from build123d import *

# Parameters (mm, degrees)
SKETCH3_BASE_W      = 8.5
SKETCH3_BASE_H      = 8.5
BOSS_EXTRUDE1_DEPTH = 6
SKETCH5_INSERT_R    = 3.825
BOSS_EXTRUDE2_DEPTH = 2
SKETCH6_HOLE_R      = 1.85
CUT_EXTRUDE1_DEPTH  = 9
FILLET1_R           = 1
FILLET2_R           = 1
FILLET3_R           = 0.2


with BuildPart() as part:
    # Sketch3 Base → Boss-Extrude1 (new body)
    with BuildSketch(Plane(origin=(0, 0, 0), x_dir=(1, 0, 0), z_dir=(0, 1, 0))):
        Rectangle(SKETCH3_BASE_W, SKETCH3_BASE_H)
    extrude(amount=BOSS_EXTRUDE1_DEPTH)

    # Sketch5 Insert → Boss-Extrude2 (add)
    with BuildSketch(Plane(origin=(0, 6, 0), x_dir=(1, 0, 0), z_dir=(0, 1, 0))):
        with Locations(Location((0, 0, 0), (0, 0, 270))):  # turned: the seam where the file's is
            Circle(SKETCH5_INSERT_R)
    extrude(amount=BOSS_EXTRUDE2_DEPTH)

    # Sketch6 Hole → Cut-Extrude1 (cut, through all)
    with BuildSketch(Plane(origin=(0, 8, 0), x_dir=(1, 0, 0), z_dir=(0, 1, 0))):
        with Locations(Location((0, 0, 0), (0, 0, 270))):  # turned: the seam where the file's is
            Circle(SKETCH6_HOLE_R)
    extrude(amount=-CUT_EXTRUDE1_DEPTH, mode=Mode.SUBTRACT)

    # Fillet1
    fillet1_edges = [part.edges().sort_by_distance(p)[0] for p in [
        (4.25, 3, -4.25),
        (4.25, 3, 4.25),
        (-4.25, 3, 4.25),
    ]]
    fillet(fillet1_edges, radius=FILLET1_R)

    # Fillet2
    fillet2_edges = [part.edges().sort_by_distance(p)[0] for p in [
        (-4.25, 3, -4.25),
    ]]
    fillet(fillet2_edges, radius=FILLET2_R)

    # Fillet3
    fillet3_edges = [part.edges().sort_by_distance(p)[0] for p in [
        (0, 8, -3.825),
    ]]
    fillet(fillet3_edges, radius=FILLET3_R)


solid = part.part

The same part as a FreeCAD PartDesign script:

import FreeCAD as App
import Part
import Sketcher
from FreeCAD import Vector
Q = App.Units.Quantity


def edges_at(feature, points):
    """Names of the edges that pass closest to the given points."""
    edges = feature.Shape.Edges
    near = lambda p: min(range(len(edges)), key=lambda i: edges[i].distToShape(Part.Vertex(*p))[0])
    return sorted({f"Edge{near(p) + 1}" for p in points})

doc = App.newDocument("Part")
body = doc.addObject("PartDesign::Body", "Body")

sketch1 = body.newObject("Sketcher::SketchObject", "Sketch")
sketch1.AttachmentSupport = (doc.getObject("XZ_Plane"), [""])
sketch1.MapMode = "FlatFace"
sketch1.addGeometry([
    Part.LineSegment(Vector(-4.25, -4.25, 0), Vector(-4.25, 4.25, 0)),
    Part.LineSegment(Vector(-4.25, 4.25, 0), Vector(4.25, 4.25, 0)),
    Part.LineSegment(Vector(4.25, 4.25, 0), Vector(4.25, -4.25, 0)),
    Part.LineSegment(Vector(4.25, -4.25, 0), Vector(-4.25, -4.25, 0)),
], False)
sketch1.addConstraint([
    Sketcher.Constraint("Coincident", 0, 2, 1, 1),
    Sketcher.Constraint("Coincident", 1, 2, 2, 1),
    Sketcher.Constraint("Coincident", 2, 2, 3, 1),
    Sketcher.Constraint("Coincident", 3, 2, 0, 1),
    Sketcher.Constraint("Vertical", 0),
    Sketcher.Constraint("Horizontal", 1),
    Sketcher.Constraint("Vertical", 2),
    Sketcher.Constraint("Horizontal", 3),
    Sketcher.Constraint("Symmetric", 0, 2, 2, 2, -1, 1),
    Sketcher.Constraint("Equal", 3, 0),
    Sketcher.Constraint("DistanceX", 1, 1, 1, 2, Q("8.5 mm")),
])
pad1 = body.newObject("PartDesign::Pad", "Pad")
pad1.Profile = sketch1
pad1.Length = 6
pad1.Reversed = True

sketch2 = body.newObject("Sketcher::SketchObject", "Sketch001")
sketch2.AttachmentSupport = (doc.getObject("XZ_Plane"), [""])
sketch2.MapMode = "FlatFace"
sketch2.AttachmentOffset = App.Placement(Vector(0, 0, -6), App.Rotation())
sketch2.addGeometry(Part.Circle(Vector(0, 0, 0), Vector(0, 0, 1), 3.825), False)
sketch2.addConstraint([
    Sketcher.Constraint("Coincident", 0, 3, -1, 1),
    Sketcher.Constraint("Diameter", 0, Q("7.65 mm")),
])
pad2 = body.newObject("PartDesign::Pad", "Pad001")
pad2.Profile = sketch2
pad2.Length = 2
pad2.Reversed = True

sketch3 = body.newObject("Sketcher::SketchObject", "Sketch002")
sketch3.AttachmentSupport = (doc.getObject("XZ_Plane"), [""])
sketch3.MapMode = "FlatFace"
sketch3.AttachmentOffset = App.Placement(Vector(0, 0, -8), App.Rotation())
sketch3.addGeometry(Part.Circle(Vector(0, 0, 0), Vector(0, 0, 1), 1.85), False)
sketch3.addConstraint([
    Sketcher.Constraint("Coincident", 0, 3, -1, 1),
    Sketcher.Constraint("Diameter", 0, Q("3.7 mm")),
])
pocket1 = body.newObject("PartDesign::Pocket", "Pocket")
pocket1.Profile = sketch3
pocket1.Type = "ThroughAll"
pocket1.Reversed = True
doc.recompute()

fillet = body.newObject("PartDesign::Fillet", "Fillet")
fillet.Base = (pocket1, edges_at(pocket1, [(4.25, 3, -4.25), (4.25, 3, 4.25), (-4.25, 3, 4.25)]))
fillet.Radius = 1
doc.recompute()

fillet2 = body.newObject("PartDesign::Fillet", "Fillet001")
fillet2.Base = (fillet, edges_at(fillet, [(-4.25, 3, -4.25)]))
fillet2.Radius = 1
doc.recompute()

fillet3 = body.newObject("PartDesign::Fillet", "Fillet002")
fillet3.Base = (fillet2, edges_at(fillet2, [(0, 8, -3.825)]))
fillet3.Radius = 0.2

doc.recompute()
